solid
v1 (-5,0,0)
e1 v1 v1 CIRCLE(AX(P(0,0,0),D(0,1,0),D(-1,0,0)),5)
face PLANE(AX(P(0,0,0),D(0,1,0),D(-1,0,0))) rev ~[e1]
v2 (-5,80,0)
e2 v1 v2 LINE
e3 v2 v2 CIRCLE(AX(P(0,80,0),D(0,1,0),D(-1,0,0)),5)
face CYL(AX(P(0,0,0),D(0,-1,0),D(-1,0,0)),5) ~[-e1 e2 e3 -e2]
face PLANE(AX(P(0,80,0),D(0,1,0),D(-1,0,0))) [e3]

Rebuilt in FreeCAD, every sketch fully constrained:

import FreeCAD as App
import Part
import Sketcher
from FreeCAD import Vector

doc = App.newDocument("Part")
body = doc.addObject("PartDesign::Body", "Body")

# Sketch on XZ plane
sketch1 = doc.addObject("Sketcher::SketchObject", "Sketch")
body.addObject(sketch1)
sketch1.AttachmentSupport = (doc.XZ_Plane, [""])
sketch1.MapMode = "FlatFace"
sketch1.addGeometry(Part.Circle(Vector(0, 0, 0), Vector(0, 0, 1), 5), False)
sketch1.addConstraint([
    Sketcher.Constraint("Coincident", 0, 3, -1, 1),
    Sketcher.Constraint("Diameter", 0, 10.0),
])
pad1 = doc.addObject("PartDesign::Pad", "Pad")
body.addObject(pad1)
pad1.Profile = sketch1
pad1.Length = 80
pad1.Reversed = True

doc.recompute()
